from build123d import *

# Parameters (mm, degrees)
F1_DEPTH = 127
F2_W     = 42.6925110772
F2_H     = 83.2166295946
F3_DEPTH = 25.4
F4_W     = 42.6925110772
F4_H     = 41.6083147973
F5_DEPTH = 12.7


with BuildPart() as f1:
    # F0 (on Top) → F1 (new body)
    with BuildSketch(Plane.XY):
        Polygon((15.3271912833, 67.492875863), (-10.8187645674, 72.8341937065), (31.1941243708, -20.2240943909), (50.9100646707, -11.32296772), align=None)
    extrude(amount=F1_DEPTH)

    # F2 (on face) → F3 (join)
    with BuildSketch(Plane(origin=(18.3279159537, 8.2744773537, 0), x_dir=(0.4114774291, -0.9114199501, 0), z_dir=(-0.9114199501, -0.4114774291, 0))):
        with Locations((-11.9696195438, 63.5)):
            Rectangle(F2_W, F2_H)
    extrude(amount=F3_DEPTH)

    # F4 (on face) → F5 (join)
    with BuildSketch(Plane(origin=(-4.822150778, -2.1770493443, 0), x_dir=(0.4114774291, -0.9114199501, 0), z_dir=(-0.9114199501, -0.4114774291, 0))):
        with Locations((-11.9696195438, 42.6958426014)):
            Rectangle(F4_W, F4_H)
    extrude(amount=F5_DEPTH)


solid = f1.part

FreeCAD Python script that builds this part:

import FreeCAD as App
import Part
import Sketcher

V = App.Vector
Q = App.Units.Quantity


def add_polygon(sketch, points):
    """Adds a closed chain of lines whose ends are joined by coincident constraints."""
    first, n = sketch.GeometryCount, len(points)
    for a, b in zip(points, points[1:] + points[:1]):
        sketch.addGeometry(Part.LineSegment(App.Vector(*a, 0), App.Vector(*b, 0)), False)
    for i in range(n):
        sketch.addConstraint(Sketcher.Constraint("Coincident", first + i, 2, first + (i + 1) % n, 1))

doc = App.newDocument("Part")
body = doc.addObject("PartDesign::Body", "Body")

sketch1 = body.newObject("Sketcher::SketchObject", "Sketch")
sketch1.AttachmentSupport = (doc.getObject("XY_Plane"), [""])
sketch1.MapMode = "FlatFace"
add_polygon(sketch1, [(15, 67), (-11, 73), (31, -20), (51, -11)])
sketch1.addConstraint([
    Sketcher.Constraint("Perpendicular", 1, 2),
    Sketcher.Constraint("Perpendicular", 2, 3),
    Sketcher.Constraint("DistanceY", -1, 1, 3, 2, Q("2.6571998 in")),
    Sketcher.Constraint("Distance", 3, Q("86.475881 mm")),
    Sketcher.Constraint("DistanceX", -1, 1, 3, 2, Q("15.327191 mm")),
    Sketcher.Constraint("DistanceX", 0, 2, 1, 2, Q("42.012889 mm")),
    Sketcher.Constraint("DistanceY", 1, 2, 0, 2, Q("93.058288 mm")),
    Sketcher.Constraint("DistanceX", 1, 2, 2, 2, Q("19.71594 mm")),
])
pad1 = body.newObject("PartDesign::Pad", "Pad")
pad1.Profile = sketch1
pad1.Length = Q("5 in")

sketch2 = body.newObject("Sketcher::SketchObject", "Sketch001")
sketch2.Placement = App.Placement(V(18.327916, 8.274477, 0), App.Rotation(V(0.411477429, -0.91141995, 0), V(0, 0, 1), V(-0.91141995, -0.411477429, 0), "ZXY"))
add_polygon(sketch2, [(-33, 105), (-33, 22), (9, 22), (9, 105)])
sketch2.addConstraint([
    Sketcher.Constraint("Vertical", 0),
    Sketcher.Constraint("Horizontal", 1),
    Sketcher.Constraint("Vertical", 2),
    Sketcher.Constraint("Horizontal", 3),
    Sketcher.Constraint("DistanceX", 1, 1, 1, 2, Q("42.692511 mm")),
    Sketcher.Constraint("DistanceY", 0, 2, 0, 1, Q("83.21663 mm")),
    Sketcher.Constraint("DistanceX", 0, 2, -1, 1, Q("33.315875 mm")),
    Sketcher.Constraint("DistanceY", -1, 1, 0, 2, Q("21.891685 mm")),
])
pad2 = body.newObject("PartDesign::Pad", "Pad001")
pad2.Profile = sketch2
pad2.Length = Q("1 in")

sketch3 = body.newObject("Sketcher::SketchObject", "Sketch002")
sketch3.Placement = App.Placement(V(-4.822151, -2.177049, 0), App.Rotation(V(0.411477429, -0.91141995, 0), V(0, 0, 1), V(-0.91141995, -0.411477429, 0), "ZXY"))
add_polygon(sketch3, [(-33, 63), (-33, 22), (9, 22), (9, 63)])
sketch3.addConstraint([
    Sketcher.Constraint("Vertical", 0),
    Sketcher.Constraint("Horizontal", 1),
    Sketcher.Constraint("Vertical", 2),
    Sketcher.Constraint("Horizontal", 3),
    Sketcher.Constraint("DistanceY", -1, 1, 2, 2, Q("2.5 in")),
    Sketcher.Constraint("DistanceX", 1, 1, 1, 2, Q("42.692511 mm")),
    Sketcher.Constraint("DistanceY", 0, 2, 0, 1, Q("41.608315 mm")),
    Sketcher.Constraint("DistanceX", 0, 2, -1, 1, Q("33.315875 mm")),
])
pad3 = body.newObject("PartDesign::Pad", "Pad002")
pad3.Profile = sketch3
pad3.Length = Q("0.5 in")

doc.recompute()
